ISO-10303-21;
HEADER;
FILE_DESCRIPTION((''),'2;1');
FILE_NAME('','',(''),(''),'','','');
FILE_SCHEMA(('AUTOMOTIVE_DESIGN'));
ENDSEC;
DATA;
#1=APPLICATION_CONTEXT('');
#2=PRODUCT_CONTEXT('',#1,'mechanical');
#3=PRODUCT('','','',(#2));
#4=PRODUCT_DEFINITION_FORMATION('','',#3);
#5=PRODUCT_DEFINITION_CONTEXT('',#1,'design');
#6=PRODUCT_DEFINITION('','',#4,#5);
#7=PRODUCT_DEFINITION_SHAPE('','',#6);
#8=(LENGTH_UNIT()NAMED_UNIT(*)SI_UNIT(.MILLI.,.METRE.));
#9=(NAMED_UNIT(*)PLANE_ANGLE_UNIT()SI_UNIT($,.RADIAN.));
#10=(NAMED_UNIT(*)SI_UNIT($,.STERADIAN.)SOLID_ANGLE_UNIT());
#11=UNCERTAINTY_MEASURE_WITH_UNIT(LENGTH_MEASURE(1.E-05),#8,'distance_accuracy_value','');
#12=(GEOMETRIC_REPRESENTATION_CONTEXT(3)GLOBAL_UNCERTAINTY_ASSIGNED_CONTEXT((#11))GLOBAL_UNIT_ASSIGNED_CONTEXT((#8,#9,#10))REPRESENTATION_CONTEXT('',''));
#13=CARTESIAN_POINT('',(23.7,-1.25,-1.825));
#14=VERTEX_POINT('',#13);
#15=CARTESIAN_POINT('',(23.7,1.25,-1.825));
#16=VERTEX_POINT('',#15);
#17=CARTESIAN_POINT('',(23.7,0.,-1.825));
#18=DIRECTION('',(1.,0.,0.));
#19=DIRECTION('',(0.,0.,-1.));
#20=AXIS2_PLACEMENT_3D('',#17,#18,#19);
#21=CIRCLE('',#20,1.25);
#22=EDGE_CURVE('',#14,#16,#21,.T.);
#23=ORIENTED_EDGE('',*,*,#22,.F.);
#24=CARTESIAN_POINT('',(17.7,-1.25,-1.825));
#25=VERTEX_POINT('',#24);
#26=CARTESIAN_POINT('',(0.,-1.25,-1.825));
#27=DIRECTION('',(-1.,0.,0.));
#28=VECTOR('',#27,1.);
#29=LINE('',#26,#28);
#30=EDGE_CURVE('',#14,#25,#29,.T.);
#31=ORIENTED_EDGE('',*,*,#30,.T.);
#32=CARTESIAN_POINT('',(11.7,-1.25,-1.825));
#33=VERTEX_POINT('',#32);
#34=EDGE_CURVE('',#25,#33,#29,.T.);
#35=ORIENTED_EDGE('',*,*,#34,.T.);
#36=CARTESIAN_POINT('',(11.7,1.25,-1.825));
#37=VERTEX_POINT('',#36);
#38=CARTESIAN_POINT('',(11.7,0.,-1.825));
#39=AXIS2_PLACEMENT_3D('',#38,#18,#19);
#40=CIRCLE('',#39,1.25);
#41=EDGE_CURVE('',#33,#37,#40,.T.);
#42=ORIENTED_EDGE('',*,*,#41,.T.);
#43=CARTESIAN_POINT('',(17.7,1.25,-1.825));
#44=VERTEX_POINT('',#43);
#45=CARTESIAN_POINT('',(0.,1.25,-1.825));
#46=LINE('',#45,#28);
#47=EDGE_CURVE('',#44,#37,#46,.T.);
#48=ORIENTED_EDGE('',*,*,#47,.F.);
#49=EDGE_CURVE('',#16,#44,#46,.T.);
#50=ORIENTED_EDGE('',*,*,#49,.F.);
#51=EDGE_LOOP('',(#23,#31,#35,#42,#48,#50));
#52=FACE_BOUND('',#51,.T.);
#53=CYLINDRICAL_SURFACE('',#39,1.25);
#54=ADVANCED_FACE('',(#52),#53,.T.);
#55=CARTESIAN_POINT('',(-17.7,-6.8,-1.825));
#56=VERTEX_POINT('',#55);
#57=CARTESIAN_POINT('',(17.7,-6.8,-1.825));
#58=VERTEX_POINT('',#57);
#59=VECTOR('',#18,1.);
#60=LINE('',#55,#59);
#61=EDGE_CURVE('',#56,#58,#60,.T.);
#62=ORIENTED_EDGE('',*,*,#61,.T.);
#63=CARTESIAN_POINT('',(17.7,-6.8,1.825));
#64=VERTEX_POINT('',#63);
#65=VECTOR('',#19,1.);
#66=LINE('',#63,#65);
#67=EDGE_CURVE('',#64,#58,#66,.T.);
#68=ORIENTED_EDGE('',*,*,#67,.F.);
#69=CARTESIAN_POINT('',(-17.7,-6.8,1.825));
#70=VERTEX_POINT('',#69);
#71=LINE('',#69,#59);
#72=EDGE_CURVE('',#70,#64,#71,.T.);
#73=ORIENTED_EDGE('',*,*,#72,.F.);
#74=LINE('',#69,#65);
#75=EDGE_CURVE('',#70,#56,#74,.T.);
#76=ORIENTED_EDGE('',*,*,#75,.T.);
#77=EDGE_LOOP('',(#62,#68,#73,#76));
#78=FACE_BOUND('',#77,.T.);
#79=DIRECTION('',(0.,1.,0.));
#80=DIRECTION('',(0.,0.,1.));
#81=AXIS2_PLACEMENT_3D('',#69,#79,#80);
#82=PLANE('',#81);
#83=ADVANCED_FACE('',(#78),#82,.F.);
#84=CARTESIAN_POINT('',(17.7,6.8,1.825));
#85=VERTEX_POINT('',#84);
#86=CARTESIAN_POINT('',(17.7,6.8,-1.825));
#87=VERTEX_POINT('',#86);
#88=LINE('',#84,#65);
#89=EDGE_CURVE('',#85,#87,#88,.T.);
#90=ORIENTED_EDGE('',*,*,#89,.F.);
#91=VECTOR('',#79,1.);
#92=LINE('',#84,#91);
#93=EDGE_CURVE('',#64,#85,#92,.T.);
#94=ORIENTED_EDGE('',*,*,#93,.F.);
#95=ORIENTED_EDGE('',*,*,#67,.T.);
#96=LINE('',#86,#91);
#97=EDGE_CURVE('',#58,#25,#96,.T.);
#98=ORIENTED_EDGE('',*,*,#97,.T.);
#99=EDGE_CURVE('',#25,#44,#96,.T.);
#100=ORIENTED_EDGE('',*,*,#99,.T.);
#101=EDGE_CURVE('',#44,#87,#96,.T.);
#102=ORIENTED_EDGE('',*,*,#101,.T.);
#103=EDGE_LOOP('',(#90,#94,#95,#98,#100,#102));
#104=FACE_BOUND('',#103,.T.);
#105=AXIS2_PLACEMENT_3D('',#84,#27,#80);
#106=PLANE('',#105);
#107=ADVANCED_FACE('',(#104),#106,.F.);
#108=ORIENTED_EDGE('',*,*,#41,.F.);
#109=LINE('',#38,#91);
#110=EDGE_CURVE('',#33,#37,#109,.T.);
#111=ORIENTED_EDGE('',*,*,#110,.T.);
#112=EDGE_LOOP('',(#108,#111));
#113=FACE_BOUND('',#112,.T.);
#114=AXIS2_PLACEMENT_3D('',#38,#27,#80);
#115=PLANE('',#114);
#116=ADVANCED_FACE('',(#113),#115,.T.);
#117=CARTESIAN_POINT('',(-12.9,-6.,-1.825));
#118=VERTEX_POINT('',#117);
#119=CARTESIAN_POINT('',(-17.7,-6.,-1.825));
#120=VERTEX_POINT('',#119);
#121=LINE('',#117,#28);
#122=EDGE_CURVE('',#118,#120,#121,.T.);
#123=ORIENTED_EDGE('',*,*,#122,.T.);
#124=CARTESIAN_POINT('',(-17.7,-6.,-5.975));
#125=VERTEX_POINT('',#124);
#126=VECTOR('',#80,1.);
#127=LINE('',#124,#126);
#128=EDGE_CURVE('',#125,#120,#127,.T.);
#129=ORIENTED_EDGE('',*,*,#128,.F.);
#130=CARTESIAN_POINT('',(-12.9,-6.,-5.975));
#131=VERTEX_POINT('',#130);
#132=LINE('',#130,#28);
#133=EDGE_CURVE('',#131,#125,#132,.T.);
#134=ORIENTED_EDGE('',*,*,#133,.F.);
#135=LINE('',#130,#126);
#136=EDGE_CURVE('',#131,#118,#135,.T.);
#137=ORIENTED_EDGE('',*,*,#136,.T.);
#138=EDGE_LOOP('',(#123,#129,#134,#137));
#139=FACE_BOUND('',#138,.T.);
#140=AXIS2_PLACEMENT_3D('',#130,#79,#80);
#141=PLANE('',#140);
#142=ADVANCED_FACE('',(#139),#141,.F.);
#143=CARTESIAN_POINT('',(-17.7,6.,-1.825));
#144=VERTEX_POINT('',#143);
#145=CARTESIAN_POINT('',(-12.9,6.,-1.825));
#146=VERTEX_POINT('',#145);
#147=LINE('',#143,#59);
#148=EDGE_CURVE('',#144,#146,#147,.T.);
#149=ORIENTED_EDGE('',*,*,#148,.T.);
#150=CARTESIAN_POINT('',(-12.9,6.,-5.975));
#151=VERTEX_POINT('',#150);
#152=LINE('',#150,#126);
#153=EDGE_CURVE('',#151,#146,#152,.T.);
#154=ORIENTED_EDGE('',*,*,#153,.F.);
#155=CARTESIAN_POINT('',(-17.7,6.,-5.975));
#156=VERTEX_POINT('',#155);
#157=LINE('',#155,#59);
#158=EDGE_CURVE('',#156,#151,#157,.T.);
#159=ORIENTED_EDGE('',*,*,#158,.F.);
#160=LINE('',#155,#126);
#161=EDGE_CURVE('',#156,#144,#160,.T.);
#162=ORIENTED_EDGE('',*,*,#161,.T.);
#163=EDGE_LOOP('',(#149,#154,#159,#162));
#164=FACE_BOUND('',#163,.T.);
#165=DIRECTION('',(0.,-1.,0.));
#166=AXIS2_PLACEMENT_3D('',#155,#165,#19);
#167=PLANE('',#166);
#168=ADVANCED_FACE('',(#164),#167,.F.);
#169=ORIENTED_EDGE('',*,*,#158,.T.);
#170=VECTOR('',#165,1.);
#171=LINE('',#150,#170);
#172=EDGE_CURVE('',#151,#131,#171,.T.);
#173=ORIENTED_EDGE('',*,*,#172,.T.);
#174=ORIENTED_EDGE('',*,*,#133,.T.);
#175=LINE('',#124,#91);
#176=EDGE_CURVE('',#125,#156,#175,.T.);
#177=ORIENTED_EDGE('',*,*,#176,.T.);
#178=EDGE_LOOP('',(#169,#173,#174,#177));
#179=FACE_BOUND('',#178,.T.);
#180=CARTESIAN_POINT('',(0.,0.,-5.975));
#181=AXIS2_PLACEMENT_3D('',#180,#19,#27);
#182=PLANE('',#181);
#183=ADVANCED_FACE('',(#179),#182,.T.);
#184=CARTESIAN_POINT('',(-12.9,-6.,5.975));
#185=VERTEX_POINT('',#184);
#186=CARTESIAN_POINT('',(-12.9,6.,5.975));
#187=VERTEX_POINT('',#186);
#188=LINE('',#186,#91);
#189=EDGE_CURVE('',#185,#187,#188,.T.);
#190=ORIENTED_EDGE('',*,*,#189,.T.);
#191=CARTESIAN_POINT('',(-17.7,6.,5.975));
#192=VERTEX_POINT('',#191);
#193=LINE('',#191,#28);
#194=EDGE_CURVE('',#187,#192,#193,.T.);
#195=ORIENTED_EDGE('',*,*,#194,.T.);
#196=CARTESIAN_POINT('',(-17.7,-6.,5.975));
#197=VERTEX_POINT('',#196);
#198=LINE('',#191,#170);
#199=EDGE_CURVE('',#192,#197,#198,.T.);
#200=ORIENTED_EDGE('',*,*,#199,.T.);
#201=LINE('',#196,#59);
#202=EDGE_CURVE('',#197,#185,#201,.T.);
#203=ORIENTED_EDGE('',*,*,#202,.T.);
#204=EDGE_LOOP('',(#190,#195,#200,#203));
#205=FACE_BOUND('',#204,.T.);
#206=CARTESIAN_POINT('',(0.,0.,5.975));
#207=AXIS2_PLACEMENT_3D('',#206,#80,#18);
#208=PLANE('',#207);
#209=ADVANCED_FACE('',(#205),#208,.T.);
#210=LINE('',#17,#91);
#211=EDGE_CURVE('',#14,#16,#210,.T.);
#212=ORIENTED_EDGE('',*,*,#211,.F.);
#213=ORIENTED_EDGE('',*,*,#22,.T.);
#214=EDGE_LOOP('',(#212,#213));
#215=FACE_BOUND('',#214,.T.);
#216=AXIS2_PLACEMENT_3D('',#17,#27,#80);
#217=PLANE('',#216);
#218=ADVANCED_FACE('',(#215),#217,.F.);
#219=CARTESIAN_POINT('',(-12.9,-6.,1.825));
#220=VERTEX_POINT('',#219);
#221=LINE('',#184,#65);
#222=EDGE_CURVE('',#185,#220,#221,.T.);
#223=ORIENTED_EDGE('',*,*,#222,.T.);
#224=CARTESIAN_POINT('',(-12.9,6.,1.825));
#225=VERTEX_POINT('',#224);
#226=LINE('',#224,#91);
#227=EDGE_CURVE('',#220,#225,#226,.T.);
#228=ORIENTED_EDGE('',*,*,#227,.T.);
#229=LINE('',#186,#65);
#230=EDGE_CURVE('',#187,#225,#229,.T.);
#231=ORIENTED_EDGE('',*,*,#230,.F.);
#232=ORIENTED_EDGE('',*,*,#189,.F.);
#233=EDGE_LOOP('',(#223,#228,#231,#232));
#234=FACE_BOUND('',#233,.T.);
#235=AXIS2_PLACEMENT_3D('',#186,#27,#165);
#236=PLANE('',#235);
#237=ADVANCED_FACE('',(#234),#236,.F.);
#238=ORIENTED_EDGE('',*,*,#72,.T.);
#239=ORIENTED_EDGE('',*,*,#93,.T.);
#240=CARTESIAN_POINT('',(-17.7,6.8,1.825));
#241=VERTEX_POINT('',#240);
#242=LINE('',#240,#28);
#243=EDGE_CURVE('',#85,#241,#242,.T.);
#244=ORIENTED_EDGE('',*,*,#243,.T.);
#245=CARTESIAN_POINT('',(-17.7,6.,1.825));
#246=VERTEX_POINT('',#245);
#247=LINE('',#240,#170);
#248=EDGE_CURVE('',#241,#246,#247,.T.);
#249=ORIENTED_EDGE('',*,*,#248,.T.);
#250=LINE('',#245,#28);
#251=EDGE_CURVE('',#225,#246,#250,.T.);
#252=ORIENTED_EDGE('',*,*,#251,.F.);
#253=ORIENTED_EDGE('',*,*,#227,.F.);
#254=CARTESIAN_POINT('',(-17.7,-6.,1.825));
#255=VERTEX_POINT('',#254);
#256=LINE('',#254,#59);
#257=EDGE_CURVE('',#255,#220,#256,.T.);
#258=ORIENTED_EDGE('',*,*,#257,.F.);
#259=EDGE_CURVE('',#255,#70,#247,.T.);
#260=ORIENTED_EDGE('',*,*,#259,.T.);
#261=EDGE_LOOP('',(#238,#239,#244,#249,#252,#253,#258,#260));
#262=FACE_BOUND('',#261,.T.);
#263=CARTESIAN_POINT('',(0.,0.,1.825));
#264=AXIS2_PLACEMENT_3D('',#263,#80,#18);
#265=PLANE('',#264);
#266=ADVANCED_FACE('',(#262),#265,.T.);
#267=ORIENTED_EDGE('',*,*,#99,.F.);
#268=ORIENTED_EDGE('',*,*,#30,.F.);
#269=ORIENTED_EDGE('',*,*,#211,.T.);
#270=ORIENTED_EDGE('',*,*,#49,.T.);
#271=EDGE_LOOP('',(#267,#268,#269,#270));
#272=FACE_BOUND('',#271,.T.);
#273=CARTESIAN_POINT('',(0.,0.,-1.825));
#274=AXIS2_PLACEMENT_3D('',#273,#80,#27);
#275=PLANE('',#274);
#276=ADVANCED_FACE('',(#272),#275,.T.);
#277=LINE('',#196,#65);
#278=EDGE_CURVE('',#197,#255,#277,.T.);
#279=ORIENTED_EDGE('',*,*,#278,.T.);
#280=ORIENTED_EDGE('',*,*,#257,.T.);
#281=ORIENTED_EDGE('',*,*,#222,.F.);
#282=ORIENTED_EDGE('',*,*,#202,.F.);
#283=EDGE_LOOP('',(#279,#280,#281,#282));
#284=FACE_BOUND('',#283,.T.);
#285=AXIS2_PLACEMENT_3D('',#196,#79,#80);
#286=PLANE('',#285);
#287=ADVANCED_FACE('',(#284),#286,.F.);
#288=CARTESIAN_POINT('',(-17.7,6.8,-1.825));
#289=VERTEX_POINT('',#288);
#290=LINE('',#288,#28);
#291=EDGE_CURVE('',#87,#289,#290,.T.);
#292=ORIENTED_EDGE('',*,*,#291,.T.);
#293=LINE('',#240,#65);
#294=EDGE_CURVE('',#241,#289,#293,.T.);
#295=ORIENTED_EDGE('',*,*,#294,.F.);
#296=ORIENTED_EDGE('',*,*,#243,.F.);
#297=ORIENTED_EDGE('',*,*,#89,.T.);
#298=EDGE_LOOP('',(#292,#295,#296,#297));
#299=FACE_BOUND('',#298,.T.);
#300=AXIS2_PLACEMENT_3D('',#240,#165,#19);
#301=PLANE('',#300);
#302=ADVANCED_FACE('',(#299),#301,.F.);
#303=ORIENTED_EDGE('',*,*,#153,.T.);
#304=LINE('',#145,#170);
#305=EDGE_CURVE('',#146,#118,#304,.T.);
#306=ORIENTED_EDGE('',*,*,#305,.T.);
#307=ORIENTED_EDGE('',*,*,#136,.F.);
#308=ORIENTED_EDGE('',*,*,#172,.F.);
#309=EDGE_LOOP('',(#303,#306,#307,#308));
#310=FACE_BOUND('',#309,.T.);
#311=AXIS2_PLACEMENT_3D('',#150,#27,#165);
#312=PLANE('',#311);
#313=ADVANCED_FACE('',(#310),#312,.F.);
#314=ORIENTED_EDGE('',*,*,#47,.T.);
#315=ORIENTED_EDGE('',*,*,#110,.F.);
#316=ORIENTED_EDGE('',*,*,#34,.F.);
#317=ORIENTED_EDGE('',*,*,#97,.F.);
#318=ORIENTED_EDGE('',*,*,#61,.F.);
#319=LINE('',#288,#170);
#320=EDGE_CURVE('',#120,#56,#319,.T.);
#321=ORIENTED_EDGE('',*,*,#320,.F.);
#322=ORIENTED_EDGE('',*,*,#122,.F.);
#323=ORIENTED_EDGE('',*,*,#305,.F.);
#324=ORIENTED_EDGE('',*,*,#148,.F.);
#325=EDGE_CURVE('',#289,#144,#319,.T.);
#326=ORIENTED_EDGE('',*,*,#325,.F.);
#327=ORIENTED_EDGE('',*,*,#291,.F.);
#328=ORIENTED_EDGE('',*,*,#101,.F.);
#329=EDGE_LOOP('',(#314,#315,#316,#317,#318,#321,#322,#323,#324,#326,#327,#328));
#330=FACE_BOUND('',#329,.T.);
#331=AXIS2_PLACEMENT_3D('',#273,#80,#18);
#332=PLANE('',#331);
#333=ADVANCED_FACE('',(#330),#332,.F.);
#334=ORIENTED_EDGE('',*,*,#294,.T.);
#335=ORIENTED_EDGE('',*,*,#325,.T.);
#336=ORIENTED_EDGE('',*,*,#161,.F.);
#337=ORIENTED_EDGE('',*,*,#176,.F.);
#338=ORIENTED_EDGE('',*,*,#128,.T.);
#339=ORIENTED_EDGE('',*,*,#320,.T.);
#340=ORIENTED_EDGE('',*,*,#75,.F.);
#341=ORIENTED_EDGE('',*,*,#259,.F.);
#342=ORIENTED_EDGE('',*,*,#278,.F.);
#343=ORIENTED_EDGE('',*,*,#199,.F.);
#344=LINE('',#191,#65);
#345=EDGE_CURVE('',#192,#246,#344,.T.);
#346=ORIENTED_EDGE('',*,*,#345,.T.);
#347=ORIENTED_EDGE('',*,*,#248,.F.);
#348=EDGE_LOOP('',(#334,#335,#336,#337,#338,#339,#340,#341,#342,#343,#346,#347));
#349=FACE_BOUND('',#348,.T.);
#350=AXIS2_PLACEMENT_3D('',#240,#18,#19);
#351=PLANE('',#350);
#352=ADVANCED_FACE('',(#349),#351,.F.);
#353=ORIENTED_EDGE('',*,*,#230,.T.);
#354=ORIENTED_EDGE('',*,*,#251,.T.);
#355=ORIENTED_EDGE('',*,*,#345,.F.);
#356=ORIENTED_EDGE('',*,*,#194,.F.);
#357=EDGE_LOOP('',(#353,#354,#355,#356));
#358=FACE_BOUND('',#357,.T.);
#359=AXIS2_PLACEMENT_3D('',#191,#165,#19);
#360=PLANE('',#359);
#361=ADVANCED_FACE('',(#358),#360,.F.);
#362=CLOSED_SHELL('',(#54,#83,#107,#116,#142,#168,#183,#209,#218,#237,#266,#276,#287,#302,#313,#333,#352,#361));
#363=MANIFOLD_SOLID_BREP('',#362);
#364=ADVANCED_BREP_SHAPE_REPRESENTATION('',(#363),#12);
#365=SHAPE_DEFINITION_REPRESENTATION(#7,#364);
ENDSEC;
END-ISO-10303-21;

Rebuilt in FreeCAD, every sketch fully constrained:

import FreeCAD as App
import Part
import Sketcher
from FreeCAD import Vector


def add_polygon(sketch, points):
    """Adds a closed chain of lines whose ends are joined by coincident constraints."""
    first, n = sketch.GeometryCount, len(points)
    for a, b in zip(points, points[1:] + points[:1]):
        sketch.addGeometry(Part.LineSegment(App.Vector(*a, 0), App.Vector(*b, 0)), False)
    for i in range(n):
        sketch.addConstraint(Sketcher.Constraint("Coincident", first + i, 2, first + (i + 1) % n, 1))

doc = App.newDocument("Part")
body = doc.addObject("PartDesign::Body", "Body")

sketch1 = doc.addObject("Sketcher::SketchObject", "Sketch")
body.addObject(sketch1)
sketch1.AttachmentSupport = (doc.XY_Plane, [""])
sketch1.MapMode = "FlatFace"
add_polygon(sketch1, [(-18, 7), (-18, -7), (18, -7), (18, 7)])
sketch1.addConstraint([
    Sketcher.Constraint("Vertical", 0),
    Sketcher.Constraint("Horizontal", 1),
    Sketcher.Constraint("Vertical", 2),
    Sketcher.Constraint("Horizontal", 3),
    Sketcher.Constraint("Symmetric", 0, 2, 2, 2, -1, 1),
    Sketcher.Constraint("DistanceX", 1, 1, 1, 2, 35.4),
    Sketcher.Constraint("DistanceY", 0, 2, 0, 1, 13.6),
])
pad1 = doc.addObject("PartDesign::Pad", "Pad")
body.addObject(pad1)
pad1.Profile = sketch1
pad1.Length = 3.65
pad1.Midplane = True

sketch2 = doc.addObject("Sketcher::SketchObject", "Sketch001")
body.addObject(sketch2)
sketch2.AttachmentSupport = (doc.XY_Plane, [""])
sketch2.MapMode = "FlatFace"
sketch2.AttachmentOffset = App.Placement(Vector(0, 0, 1.825), App.Rotation())
add_polygon(sketch2, [(-17.7, 6), (-17.7, -6), (-12.9, -6), (-12.9, 6)])
sketch2.addConstraint([
    Sketcher.Constraint("Vertical", 0),
    Sketcher.Constraint("Horizontal", 1),
    Sketcher.Constraint("Vertical", 2),
    Sketcher.Constraint("Horizontal", 3),
    Sketcher.Constraint("DistanceY", 0, 2, 0, 1, 12.0),
    Sketcher.Constraint("DistanceX", 1, 1, 1, 2, 4.8),
    Sketcher.Constraint("DistanceY", 0, 2, -1, 1, 6.0),
    Sketcher.Constraint("DistanceX", 0, 2, -1, 1, 17.7),
])
pad2 = doc.addObject("PartDesign::Pad", "Pad001")
body.addObject(pad2)
pad2.Profile = sketch2
pad2.Length = 4.15

sketch3 = doc.addObject("Sketcher::SketchObject", "Sketch002")
body.addObject(sketch3)
sketch3.AttachmentSupport = (doc.XY_Plane, [""])
sketch3.MapMode = "FlatFace"
sketch3.AttachmentOffset = App.Placement(Vector(0, 0, -1.825), App.Rotation())
add_polygon(sketch3, [(-12.9, 6), (-12.9, -6), (-17.7, -6), (-17.7, 6)])
sketch3.addConstraint([
    Sketcher.Constraint("Vertical", 0),
    Sketcher.Constraint("Horizontal", 1),
    Sketcher.Constraint("Vertical", 2),
    Sketcher.Constraint("Horizontal", 3),
    Sketcher.Constraint("DistanceY", 0, 2, 0, 1, 12.0),
    Sketcher.Constraint("DistanceX", 1, 2, 1, 1, 4.8),
    Sketcher.Constraint("DistanceY", 0, 2, -1, 1, 6.0),
    Sketcher.Constraint("DistanceX", 0, 2, -1, 1, 12.9),
])
pad3 = doc.addObject("PartDesign::Pad", "Pad002")
body.addObject(pad3)
pad3.Profile = sketch3
pad3.Length = 4.15
pad3.Reversed = True

sketch4 = doc.addObject("Sketcher::SketchObject", "Sketch003")
body.addObject(sketch4)
sketch4.AttachmentSupport = (doc.XY_Plane, [""])
sketch4.MapMode = "FlatFace"
sketch4.AttachmentOffset = App.Placement(Vector(0, 0, -1.825), App.Rotation())
add_polygon(sketch4, [(23.7, 1.2), (23.7, 0), (11.7, 0), (11.7, 1.2)])
sketch4.addConstraint([
    Sketcher.Constraint("Vertical", 0),
    Sketcher.Constraint("Horizontal", 1),
    Sketcher.Constraint("Vertical", 2),
    Sketcher.Constraint("Horizontal", 3),
    Sketcher.Constraint("PointOnObject", 0, 2, -1),
    Sketcher.Constraint("DistanceX", 1, 2, 1, 1, 12.0),
    Sketcher.Constraint("DistanceY", 0, 2, 0, 1, 1.25),
    Sketcher.Constraint("DistanceX", -1, 1, 0, 2, 23.7),
])
revolution = doc.addObject("PartDesign::Revolution", "Revolution")
body.addObject(revolution)
revolution.Profile = sketch4
revolution.ReferenceAxis = (sketch4, ["H_Axis"])
revolution.Angle = 180
revolution.Reversed = True

doc.recompute()
